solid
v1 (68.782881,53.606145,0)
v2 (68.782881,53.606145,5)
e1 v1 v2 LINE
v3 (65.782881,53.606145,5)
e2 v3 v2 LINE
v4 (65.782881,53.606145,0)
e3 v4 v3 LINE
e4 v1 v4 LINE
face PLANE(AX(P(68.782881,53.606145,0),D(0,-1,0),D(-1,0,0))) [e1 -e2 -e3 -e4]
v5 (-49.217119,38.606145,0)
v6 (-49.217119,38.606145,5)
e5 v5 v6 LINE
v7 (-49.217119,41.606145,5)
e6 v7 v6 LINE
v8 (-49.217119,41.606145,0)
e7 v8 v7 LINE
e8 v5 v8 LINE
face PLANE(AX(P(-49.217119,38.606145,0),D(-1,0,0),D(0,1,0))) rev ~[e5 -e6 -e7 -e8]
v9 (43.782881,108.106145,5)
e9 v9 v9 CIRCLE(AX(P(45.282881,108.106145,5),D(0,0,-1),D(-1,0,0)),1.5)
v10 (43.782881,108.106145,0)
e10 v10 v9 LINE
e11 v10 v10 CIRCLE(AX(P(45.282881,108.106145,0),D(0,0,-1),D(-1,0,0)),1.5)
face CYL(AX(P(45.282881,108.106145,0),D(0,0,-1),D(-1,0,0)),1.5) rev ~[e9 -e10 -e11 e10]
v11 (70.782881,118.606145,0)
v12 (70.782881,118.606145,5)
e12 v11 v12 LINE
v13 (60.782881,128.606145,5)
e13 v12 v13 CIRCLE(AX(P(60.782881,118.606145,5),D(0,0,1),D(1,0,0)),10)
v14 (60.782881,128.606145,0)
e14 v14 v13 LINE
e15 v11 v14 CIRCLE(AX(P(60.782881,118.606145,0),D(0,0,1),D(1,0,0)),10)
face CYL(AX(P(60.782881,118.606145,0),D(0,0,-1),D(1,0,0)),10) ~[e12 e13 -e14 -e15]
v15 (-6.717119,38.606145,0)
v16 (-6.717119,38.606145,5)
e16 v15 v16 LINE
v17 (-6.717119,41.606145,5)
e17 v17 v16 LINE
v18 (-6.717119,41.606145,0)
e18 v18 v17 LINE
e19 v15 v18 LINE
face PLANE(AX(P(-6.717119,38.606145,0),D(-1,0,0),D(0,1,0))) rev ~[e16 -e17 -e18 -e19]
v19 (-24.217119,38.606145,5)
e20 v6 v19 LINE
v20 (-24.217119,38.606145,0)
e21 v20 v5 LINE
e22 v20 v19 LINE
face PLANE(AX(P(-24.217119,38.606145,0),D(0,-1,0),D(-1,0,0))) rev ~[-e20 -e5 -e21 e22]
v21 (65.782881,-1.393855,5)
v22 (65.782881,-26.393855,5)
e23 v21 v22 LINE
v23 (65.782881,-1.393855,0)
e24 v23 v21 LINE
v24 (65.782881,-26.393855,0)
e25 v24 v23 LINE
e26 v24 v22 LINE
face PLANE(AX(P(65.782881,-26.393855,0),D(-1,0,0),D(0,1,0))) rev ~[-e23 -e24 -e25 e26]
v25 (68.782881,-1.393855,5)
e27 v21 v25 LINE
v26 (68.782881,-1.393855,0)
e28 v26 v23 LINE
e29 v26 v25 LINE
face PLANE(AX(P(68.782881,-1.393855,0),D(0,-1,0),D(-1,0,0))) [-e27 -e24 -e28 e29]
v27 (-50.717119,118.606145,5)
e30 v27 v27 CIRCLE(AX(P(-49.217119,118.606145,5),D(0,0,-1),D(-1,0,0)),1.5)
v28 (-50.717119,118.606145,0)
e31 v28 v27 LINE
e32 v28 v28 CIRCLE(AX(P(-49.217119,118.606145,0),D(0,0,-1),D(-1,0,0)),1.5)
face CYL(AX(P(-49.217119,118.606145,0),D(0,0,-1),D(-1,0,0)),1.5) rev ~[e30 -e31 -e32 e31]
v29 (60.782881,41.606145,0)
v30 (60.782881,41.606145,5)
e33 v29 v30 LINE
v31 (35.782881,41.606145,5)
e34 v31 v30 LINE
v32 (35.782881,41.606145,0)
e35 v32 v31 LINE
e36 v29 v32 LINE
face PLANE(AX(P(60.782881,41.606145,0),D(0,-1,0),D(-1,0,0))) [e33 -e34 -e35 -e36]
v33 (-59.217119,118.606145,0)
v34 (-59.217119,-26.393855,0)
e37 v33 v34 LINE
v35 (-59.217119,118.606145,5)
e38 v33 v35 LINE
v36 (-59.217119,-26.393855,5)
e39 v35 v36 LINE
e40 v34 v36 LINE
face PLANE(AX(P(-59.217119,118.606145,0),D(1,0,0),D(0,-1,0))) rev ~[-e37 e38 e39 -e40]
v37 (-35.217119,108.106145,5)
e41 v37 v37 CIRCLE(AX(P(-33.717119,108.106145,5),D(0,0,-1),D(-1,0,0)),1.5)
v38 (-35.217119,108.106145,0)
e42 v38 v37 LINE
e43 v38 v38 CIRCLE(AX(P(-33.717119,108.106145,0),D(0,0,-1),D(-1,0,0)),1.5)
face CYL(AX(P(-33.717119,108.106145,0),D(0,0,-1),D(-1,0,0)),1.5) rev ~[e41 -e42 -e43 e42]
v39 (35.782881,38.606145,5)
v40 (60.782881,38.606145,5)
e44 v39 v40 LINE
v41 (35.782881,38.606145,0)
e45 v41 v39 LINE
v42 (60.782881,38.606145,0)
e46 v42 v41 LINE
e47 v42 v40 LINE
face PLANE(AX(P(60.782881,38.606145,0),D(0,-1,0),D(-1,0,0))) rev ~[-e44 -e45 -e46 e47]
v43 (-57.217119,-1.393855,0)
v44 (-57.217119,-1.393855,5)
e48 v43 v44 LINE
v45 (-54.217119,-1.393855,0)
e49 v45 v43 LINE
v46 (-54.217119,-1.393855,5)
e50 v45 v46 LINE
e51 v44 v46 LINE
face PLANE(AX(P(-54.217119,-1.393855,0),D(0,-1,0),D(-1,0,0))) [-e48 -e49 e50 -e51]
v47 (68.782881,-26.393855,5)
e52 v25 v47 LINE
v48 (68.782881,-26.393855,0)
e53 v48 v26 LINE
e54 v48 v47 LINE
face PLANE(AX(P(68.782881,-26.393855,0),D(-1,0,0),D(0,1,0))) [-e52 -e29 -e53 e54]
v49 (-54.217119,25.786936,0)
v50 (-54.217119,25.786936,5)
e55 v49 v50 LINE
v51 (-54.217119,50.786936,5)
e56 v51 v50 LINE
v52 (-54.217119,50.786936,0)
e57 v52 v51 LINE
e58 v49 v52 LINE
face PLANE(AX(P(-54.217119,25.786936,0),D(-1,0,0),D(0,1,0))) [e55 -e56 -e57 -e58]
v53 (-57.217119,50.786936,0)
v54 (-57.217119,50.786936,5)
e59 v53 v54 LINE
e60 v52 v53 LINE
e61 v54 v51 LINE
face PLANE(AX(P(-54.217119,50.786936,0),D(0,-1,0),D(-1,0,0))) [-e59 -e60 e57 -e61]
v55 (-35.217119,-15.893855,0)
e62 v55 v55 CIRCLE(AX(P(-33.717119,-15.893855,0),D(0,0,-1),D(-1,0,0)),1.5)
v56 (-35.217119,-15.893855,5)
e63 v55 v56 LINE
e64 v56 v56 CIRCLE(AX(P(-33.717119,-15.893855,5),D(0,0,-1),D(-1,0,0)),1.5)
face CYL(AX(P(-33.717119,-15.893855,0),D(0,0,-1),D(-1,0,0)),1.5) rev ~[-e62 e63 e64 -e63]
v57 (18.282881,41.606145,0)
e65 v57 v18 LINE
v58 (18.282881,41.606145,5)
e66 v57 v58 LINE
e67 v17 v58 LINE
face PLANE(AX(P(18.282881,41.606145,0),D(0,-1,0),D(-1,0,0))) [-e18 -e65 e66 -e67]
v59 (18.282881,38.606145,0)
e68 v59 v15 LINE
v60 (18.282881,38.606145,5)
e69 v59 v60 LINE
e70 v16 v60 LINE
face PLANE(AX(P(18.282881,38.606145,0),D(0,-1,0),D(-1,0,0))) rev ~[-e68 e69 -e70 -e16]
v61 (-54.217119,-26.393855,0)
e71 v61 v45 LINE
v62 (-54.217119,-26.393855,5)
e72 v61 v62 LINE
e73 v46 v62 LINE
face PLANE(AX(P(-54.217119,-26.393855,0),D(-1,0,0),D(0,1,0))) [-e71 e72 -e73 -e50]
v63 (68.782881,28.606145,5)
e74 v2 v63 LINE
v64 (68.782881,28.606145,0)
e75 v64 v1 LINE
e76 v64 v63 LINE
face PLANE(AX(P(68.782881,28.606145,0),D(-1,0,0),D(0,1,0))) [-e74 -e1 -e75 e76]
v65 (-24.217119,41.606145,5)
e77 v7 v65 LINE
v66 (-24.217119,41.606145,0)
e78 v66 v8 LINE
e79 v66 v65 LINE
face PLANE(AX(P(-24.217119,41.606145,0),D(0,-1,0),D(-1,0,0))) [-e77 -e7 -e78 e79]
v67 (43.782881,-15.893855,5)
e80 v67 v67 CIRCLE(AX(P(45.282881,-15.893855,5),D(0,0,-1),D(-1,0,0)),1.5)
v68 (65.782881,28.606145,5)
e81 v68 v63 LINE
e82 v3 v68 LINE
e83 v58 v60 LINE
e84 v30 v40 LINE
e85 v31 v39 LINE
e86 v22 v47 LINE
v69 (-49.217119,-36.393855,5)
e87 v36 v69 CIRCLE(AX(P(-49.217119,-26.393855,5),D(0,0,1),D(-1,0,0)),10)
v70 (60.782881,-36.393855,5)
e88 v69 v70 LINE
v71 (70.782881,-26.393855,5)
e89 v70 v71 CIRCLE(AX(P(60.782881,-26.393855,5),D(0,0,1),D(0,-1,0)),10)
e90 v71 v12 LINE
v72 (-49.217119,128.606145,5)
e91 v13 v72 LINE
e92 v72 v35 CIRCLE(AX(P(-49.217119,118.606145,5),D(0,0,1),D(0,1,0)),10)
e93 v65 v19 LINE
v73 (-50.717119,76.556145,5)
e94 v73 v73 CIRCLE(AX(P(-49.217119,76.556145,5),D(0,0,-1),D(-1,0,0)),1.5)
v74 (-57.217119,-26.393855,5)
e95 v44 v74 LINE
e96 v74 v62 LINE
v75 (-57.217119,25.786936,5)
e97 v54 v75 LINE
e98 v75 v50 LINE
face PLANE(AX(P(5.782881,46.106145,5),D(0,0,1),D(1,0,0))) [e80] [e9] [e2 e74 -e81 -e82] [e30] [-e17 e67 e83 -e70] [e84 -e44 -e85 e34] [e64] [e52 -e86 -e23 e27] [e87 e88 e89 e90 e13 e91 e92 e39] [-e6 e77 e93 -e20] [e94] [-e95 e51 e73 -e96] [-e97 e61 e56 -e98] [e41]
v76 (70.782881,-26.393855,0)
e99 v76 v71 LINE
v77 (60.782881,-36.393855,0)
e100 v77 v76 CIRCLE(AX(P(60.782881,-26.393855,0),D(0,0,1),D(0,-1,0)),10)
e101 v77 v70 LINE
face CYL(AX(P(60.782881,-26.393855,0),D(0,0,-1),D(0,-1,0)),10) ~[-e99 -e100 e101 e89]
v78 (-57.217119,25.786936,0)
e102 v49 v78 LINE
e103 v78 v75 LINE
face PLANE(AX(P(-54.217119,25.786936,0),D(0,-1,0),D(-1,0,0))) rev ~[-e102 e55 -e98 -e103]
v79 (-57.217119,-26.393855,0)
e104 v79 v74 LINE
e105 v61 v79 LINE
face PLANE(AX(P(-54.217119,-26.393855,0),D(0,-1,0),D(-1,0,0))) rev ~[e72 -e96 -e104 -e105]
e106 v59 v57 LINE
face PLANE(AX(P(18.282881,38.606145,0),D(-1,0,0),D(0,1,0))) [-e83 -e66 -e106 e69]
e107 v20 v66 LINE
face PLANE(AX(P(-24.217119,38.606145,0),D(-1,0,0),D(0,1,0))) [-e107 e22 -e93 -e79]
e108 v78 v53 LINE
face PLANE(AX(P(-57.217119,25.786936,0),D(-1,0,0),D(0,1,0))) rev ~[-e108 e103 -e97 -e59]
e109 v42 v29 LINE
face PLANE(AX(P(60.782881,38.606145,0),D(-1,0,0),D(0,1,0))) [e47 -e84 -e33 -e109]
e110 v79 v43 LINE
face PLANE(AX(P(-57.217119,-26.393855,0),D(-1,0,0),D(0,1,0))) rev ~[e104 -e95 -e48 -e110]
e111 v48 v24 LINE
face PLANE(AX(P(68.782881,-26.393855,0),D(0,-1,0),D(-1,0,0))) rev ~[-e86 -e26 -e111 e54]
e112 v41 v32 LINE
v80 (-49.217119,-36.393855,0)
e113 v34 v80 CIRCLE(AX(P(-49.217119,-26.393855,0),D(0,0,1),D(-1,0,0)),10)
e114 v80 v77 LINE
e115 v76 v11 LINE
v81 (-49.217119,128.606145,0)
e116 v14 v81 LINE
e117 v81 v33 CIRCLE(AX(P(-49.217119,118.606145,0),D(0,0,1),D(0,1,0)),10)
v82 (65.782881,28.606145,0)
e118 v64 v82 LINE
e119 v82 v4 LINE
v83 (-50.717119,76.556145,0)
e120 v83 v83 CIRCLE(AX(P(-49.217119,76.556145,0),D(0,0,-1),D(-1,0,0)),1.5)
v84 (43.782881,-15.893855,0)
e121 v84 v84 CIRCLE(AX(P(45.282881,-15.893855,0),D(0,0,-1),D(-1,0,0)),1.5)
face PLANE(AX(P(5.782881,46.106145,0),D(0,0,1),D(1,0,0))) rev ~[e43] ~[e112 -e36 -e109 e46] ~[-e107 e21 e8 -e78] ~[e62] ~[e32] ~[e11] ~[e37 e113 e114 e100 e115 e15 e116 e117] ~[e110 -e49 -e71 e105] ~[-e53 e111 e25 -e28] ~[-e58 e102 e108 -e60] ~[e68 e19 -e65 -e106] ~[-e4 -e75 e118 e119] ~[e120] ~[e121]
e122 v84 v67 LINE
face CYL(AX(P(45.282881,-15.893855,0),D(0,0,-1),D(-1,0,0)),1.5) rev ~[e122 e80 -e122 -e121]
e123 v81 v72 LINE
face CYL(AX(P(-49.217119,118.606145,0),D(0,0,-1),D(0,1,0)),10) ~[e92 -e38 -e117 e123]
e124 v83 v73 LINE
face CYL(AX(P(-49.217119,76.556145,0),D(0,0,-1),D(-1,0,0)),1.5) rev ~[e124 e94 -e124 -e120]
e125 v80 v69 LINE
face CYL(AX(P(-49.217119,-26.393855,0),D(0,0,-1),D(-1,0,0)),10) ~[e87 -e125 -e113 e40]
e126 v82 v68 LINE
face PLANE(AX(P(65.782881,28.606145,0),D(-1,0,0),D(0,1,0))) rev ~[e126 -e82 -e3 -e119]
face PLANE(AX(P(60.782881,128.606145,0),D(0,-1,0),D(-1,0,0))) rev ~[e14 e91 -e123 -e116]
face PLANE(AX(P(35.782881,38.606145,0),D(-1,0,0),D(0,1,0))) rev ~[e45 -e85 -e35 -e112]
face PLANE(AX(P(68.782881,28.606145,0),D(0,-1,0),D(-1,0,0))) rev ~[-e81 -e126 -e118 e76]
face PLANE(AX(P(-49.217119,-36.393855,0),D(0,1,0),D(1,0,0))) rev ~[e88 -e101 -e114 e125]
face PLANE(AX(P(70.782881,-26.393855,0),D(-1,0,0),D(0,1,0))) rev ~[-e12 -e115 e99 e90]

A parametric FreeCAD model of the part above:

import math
import FreeCAD as App
import Part
import Sketcher

doc = App.newDocument("Part")
body = doc.addObject("PartDesign::Body", "Body")

sketch1 = body.newObject("Sketcher::SketchObject", "Sketch")
sketch1.AttachmentSupport = (doc.getObject("XY_Plane"), [""])
sketch1.MapMode = "FlatFace"
sketch1.addGeometry(Part.LineSegment(App.Vector(-49, -36, 0), App.Vector(61, -36, 0)), False)
sketch1.addGeometry(Part.ArcOfCircle(Part.Circle(App.Vector(61, -26, 0), App.Vector(0, 0, 1), 10), math.radians(-90), math.radians(0)), False)
sketch1.addGeometry(Part.LineSegment(App.Vector(71, -26, 0), App.Vector(71, 119, 0)), False)
sketch1.addGeometry(Part.ArcOfCircle(Part.Circle(App.Vector(61, 119, 0), App.Vector(0, 0, 1), 10), math.radians(0), math.radians(90)), False)
sketch1.addGeometry(Part.LineSegment(App.Vector(61, 129, 0), App.Vector(-49, 129, 0)), False)
sketch1.addGeometry(Part.ArcOfCircle(Part.Circle(App.Vector(-49, 119, 0), App.Vector(0, 0, 1), 10), math.radians(90), math.radians(180)), False)
sketch1.addGeometry(Part.LineSegment(App.Vector(-59, 119, 0), App.Vector(-59, -26, 0)), False)
sketch1.addGeometry(Part.ArcOfCircle(Part.Circle(App.Vector(-49, -26, 0), App.Vector(0, 0, 1), 10), math.radians(180), math.radians(270)), False)
sketch1.addConstraint(Sketcher.Constraint("Tangent", 0, 2, 1, 1))
sketch1.addConstraint(Sketcher.Constraint("Tangent", 1, 2, 2, 1))
sketch1.addConstraint(Sketcher.Constraint("Tangent", 2, 2, 3, 1))
sketch1.addConstraint(Sketcher.Constraint("Tangent", 3, 2, 4, 1))
sketch1.addConstraint(Sketcher.Constraint("Tangent", 4, 2, 5, 1))
sketch1.addConstraint(Sketcher.Constraint("Tangent", 5, 2, 6, 1))
sketch1.addConstraint(Sketcher.Constraint("Tangent", 6, 2, 7, 1))
sketch1.addConstraint(Sketcher.Constraint("Tangent", 7, 2, 0, 1))
sketch1.addConstraint(Sketcher.Constraint("Horizontal", 0))
sketch1.addConstraint(Sketcher.Constraint("Vertical", 2))
sketch1.addConstraint(Sketcher.Constraint("Horizontal", 4))
sketch1.addConstraint(Sketcher.Constraint("Vertical", 6))
sketch1.addConstraint(Sketcher.Constraint("Equal", 1, 3))
sketch1.addConstraint(Sketcher.Constraint("Equal", 3, 5))
sketch1.addConstraint(Sketcher.Constraint("Equal", 5, 7))
sketch1.addConstraint(Sketcher.Constraint("Radius", 1, 10.0))
sketch1.addConstraint(Sketcher.Constraint("DistanceX", 0, 1, 0, 2, 110.0))
sketch1.addConstraint(Sketcher.Constraint("DistanceY", 2, 1, 2, 2, 145.0))
sketch1.addConstraint(Sketcher.Constraint("DistanceX", -1, 1, 1, 3, 60.782881))
sketch1.addConstraint(Sketcher.Constraint("DistanceY", 1, 3, -1, 1, 26.393855))
pad1 = body.newObject("PartDesign::Pad", "Pad")
pad1.Profile = sketch1
pad1.Length = 5

sketch2 = body.newObject("Sketcher::SketchObject", "Sketch001")
sketch2.AttachmentSupport = (doc.getObject("XY_Plane"), [""])
sketch2.MapMode = "FlatFace"
sketch2.addGeometry(Part.Circle(App.Vector(-33.7, -15.9, 0), App.Vector(0, 0, 1), 1.5), False)
sketch2.addGeometry(Part.Circle(App.Vector(-33.7, 108.1, 0), App.Vector(0, 0, 1), 1.5), False)
sketch2.addGeometry(Part.Circle(App.Vector(45.3, -15.9, 0), App.Vector(0, 0, 1), 1.5), False)
sketch2.addGeometry(Part.Circle(App.Vector(45.3, 108.1, 0), App.Vector(0, 0, 1), 1.5), False)
sketch2.addConstraint(Sketcher.Constraint("Equal", 0, 1))
sketch2.addConstraint(Sketcher.Constraint("Equal", 1, 2))
sketch2.addConstraint(Sketcher.Constraint("Equal", 2, 3))
sketch2.addConstraint(Sketcher.Constraint("Horizontal", 0, 3, 2, 3))
sketch2.addConstraint(Sketcher.Constraint("Horizontal", 1, 3, 3, 3))
sketch2.addConstraint(Sketcher.Constraint("Vertical", 0, 3, 1, 3))
sketch2.addConstraint(Sketcher.Constraint("Vertical", 2, 3, 3, 3))
sketch2.addConstraint(Sketcher.Constraint("Diameter", 0, 3.0))
sketch2.addConstraint(Sketcher.Constraint("DistanceY", 0, 3, 1, 3, 124.0))
sketch2.addConstraint(Sketcher.Constraint("DistanceX", 0, 3, 2, 3, 79.0))
sketch2.addConstraint(Sketcher.Constraint("DistanceX", 0, 3, -1, 1, 33.717119))
sketch2.addConstraint(Sketcher.Constraint("DistanceY", 0, 3, -1, 1, 15.893855))
pocket1 = body.newObject("PartDesign::Pocket", "Pocket")
pocket1.Profile = sketch2
pocket1.Length = 5
pocket1.Reversed = True

sketch3 = body.newObject("Sketcher::SketchObject", "Sketch002")
sketch3.AttachmentSupport = (doc.getObject("XY_Plane"), [""])
sketch3.MapMode = "FlatFace"
sketch3.addGeometry(Part.Circle(App.Vector(-49.2, 118.6, 0), App.Vector(0, 0, 1), 1.5), False)
sketch3.addGeometry(Part.Circle(App.Vector(-49.2, 76.6, 0), App.Vector(0, 0, 1), 1.5), False)
sketch3.addConstraint(Sketcher.Constraint("Equal", 0, 1))
sketch3.addConstraint(Sketcher.Constraint("Vertical", 0, 3, 1, 3))
sketch3.addConstraint(Sketcher.Constraint("Diameter", 0, 3.0))
sketch3.addConstraint(Sketcher.Constraint("DistanceY", 1, 3, 0, 3, 42.05))
sketch3.addConstraint(Sketcher.Constraint("DistanceX", 0, 3, -1, 1, 49.217119))
sketch3.addConstraint(Sketcher.Constraint("DistanceY", -1, 1, 0, 3, 118.606145))
pocket2 = body.newObject("PartDesign::Pocket", "Pocket001")
pocket2.Profile = sketch3
pocket2.Type = "ThroughAll"
pocket2.Reversed = True

sketch4 = body.newObject("Sketcher::SketchObject", "Sketch003")
sketch4.AttachmentSupport = (doc.getObject("XY_Plane"), [""])
sketch4.MapMode = "FlatFace"
sketch4.addGeometry(Part.LineSegment(App.Vector(68.8, -1.4, 0), App.Vector(68.8, -26.4, 0)), False)
sketch4.addGeometry(Part.LineSegment(App.Vector(68.8, -26.4, 0), App.Vector(65.8, -26.4, 0)), False)
sketch4.addGeometry(Part.LineSegment(App.Vector(65.8, -26.4, 0), App.Vector(65.8, -1.4, 0)), False)
sketch4.addGeometry(Part.LineSegment(App.Vector(65.8, -1.4, 0), App.Vector(68.8, -1.4, 0)), False)
sketch4.addGeometry(Part.LineSegment(App.Vector(68.8, 53.6, 0), App.Vector(68.8, 28.6, 0)), False)
sketch4.addGeometry(Part.LineSegment(App.Vector(68.8, 28.6, 0), App.Vector(65.8, 28.6, 0)), False)
sketch4.addGeometry(Part.LineSegment(App.Vector(65.8, 28.6, 0), App.Vector(65.8, 53.6, 0)), False)
sketch4.addGeometry(Part.LineSegment(App.Vector(65.8, 53.6, 0), App.Vector(68.8, 53.6, 0)), False)
sketch4.addGeometry(Part.LineSegment(App.Vector(60.8, 41.6, 0), App.Vector(60.8, 38.6, 0)), False)
sketch4.addGeometry(Part.LineSegment(App.Vector(60.8, 38.6, 0), App.Vector(35.8, 38.6, 0)), False)
sketch4.addGeometry(Part.LineSegment(App.Vector(35.8, 38.6, 0), App.Vector(35.8, 41.6, 0)), False)
sketch4.addGeometry(Part.LineSegment(App.Vector(35.8, 41.6, 0), App.Vector(60.8, 41.6, 0)), False)
sketch4.addGeometry(Part.LineSegment(App.Vector(-24.2, 41.6, 0), App.Vector(-24.2, 38.6, 0)), False)
sketch4.addGeometry(Part.LineSegment(App.Vector(-24.2, 38.6, 0), App.Vector(-49.2, 38.6, 0)), False)
sketch4.addGeometry(Part.LineSegment(App.Vector(-49.2, 38.6, 0), App.Vector(-49.2, 41.6, 0)), False)
sketch4.addGeometry(Part.LineSegment(App.Vector(-49.2, 41.6, 0), App.Vector(-24.2, 41.6, 0)), False)
sketch4.addGeometry(Part.LineSegment(App.Vector(-54.2, 50.8, 0), App.Vector(-54.2, 25.8, 0)), False)
sketch4.addGeometry(Part.LineSegment(App.Vector(-54.2, 25.8, 0), App.Vector(-57.2, 25.8, 0)), False)
sketch4.addGeometry(Part.LineSegment(App.Vector(-57.2, 25.8, 0), App.Vector(-57.2, 50.8, 0)), False)
sketch4.addGeometry(Part.LineSegment(App.Vector(-57.2, 50.8, 0), App.Vector(-54.2, 50.8, 0)), False)
sketch4.addGeometry(Part.LineSegment(App.Vector(-54.2, -1.4, 0), App.Vector(-54.2, -26.4, 0)), False)
sketch4.addGeometry(Part.LineSegment(App.Vector(-54.2, -26.4, 0), App.Vector(-57.2, -26.4, 0)), False)
sketch4.addGeometry(Part.LineSegment(App.Vector(-57.2, -26.4, 0), App.Vector(-57.2, -1.4, 0)), False)
sketch4.addGeometry(Part.LineSegment(App.Vector(-57.2, -1.4, 0), App.Vector(-54.2, -1.4, 0)), False)
sketch4.addGeometry(Part.LineSegment(App.Vector(18.3, 41.6, 0), App.Vector(18.3, 38.6, 0)), False)
sketch4.addGeometry(Part.LineSegment(App.Vector(18.3, 38.6, 0), App.Vector(-6.7, 38.6, 0)), False)
sketch4.addGeometry(Part.LineSegment(App.Vector(-6.7, 38.6, 0), App.Vector(-6.7, 41.6, 0)), False)
sketch4.addGeometry(Part.LineSegment(App.Vector(-6.7, 41.6, 0), App.Vector(18.3, 41.6, 0)), False)
sketch4.addConstraint(Sketcher.Constraint("Coincident", 0, 2, 1, 1))
sketch4.addConstraint(Sketcher.Constraint("Coincident", 1, 2, 2, 1))
sketch4.addConstraint(Sketcher.Constraint("Coincident", 2, 2, 3, 1))
sketch4.addConstraint(Sketcher.Constraint("Coincident", 3, 2, 0, 1))
sketch4.addConstraint(Sketcher.Constraint("Coincident", 4, 2, 5, 1))
sketch4.addConstraint(Sketcher.Constraint("Coincident", 5, 2, 6, 1))
sketch4.addConstraint(Sketcher.Constraint("Coincident", 6, 2, 7, 1))
sketch4.addConstraint(Sketcher.Constraint("Coincident", 7, 2, 4, 1))
sketch4.addConstraint(Sketcher.Constraint("Coincident", 8, 2, 9, 1))
sketch4.addConstraint(Sketcher.Constraint("Coincident", 9, 2, 10, 1))
sketch4.addConstraint(Sketcher.Constraint("Coincident", 10, 2, 11, 1))
sketch4.addConstraint(Sketcher.Constraint("Coincident", 11, 2, 8, 1))
sketch4.addConstraint(Sketcher.Constraint("Coincident", 12, 2, 13, 1))
sketch4.addConstraint(Sketcher.Constraint("Coincident", 13, 2, 14, 1))
sketch4.addConstraint(Sketcher.Constraint("Coincident", 14, 2, 15, 1))
sketch4.addConstraint(Sketcher.Constraint("Coincident", 15, 2, 12, 1))
sketch4.addConstraint(Sketcher.Constraint("Coincident", 16, 2, 17, 1))
sketch4.addConstraint(Sketcher.Constraint("Coincident", 17, 2, 18, 1))
sketch4.addConstraint(Sketcher.Constraint("Coincident", 18, 2, 19, 1))
sketch4.addConstraint(Sketcher.Constraint("Coincident", 19, 2, 16, 1))
sketch4.addConstraint(Sketcher.Constraint("Coincident", 20, 2, 21, 1))
sketch4.addConstraint(Sketcher.Constraint("Coincident", 21, 2, 22, 1))
sketch4.addConstraint(Sketcher.Constraint("Coincident", 22, 2, 23, 1))
sketch4.addConstraint(Sketcher.Constraint("Coincident", 23, 2, 20, 1))
sketch4.addConstraint(Sketcher.Constraint("Coincident", 24, 2, 25, 1))
sketch4.addConstraint(Sketcher.Constraint("Coincident", 25, 2, 26, 1))
sketch4.addConstraint(Sketcher.Constraint("Coincident", 26, 2, 27, 1))
sketch4.addConstraint(Sketcher.Constraint("Coincident", 27, 2, 24, 1))
sketch4.addConstraint(Sketcher.Constraint("Vertical", 0))
sketch4.addConstraint(Sketcher.Constraint("Horizontal", 1))
sketch4.addConstraint(Sketcher.Constraint("Vertical", 2))
sketch4.addConstraint(Sketcher.Constraint("Horizontal", 3))
sketch4.addConstraint(Sketcher.Constraint("Vertical", 4))
sketch4.addConstraint(Sketcher.Constraint("Horizontal", 5))
sketch4.addConstraint(Sketcher.Constraint("Vertical", 6))
sketch4.addConstraint(Sketcher.Constraint("Horizontal", 7))
sketch4.addConstraint(Sketcher.Constraint("Vertical", 8))
sketch4.addConstraint(Sketcher.Constraint("Horizontal", 9))
sketch4.addConstraint(Sketcher.Constraint("Vertical", 10))
sketch4.addConstraint(Sketcher.Constraint("Horizontal", 11))
sketch4.addConstraint(Sketcher.Constraint("Vertical", 12))
sketch4.addConstraint(Sketcher.Constraint("Horizontal", 13))
sketch4.addConstraint(Sketcher.Constraint("Vertical", 14))
sketch4.addConstraint(Sketcher.Constraint("Horizontal", 15))
sketch4.addConstraint(Sketcher.Constraint("Vertical", 16))
sketch4.addConstraint(Sketcher.Constraint("Horizontal", 17))
sketch4.addConstraint(Sketcher.Constraint("Vertical", 18))
sketch4.addConstraint(Sketcher.Constraint("Horizontal", 19))
sketch4.addConstraint(Sketcher.Constraint("Vertical", 20))
sketch4.addConstraint(Sketcher.Constraint("Horizontal", 21))
sketch4.addConstraint(Sketcher.Constraint("Vertical", 22))
sketch4.addConstraint(Sketcher.Constraint("Horizontal", 23))
sketch4.addConstraint(Sketcher.Constraint("Vertical", 24))
sketch4.addConstraint(Sketcher.Constraint("Horizontal", 25))
sketch4.addConstraint(Sketcher.Constraint("Vertical", 26))
sketch4.addConstraint(Sketcher.Constraint("Horizontal", 27))
sketch4.addConstraint(Sketcher.Constraint("Horizontal", 9, 2, 12, 2))
sketch4.addConstraint(Sketcher.Constraint("Horizontal", 11, 2, 14, 2))
sketch4.addConstraint(Sketcher.Constraint("Horizontal", 1, 2, 20, 2))
sketch4.addConstraint(Sketcher.Constraint("Horizontal", 3, 2, 22, 2))
sketch4.addConstraint(Sketcher.Constraint("Horizontal", 13, 2, 24, 2))
sketch4.addConstraint(Sketcher.Constraint("Horizontal", 15, 2, 26, 2))
sketch4.addConstraint(Sketcher.Constraint("Vertical", 3, 2, 4, 2))
sketch4.addConstraint(Sketcher.Constraint("Vertical", 2, 2, 5, 2))
sketch4.addConstraint(Sketcher.Constraint("Vertical", 19, 2, 20, 2))
sketch4.addConstraint(Sketcher.Constraint("Vertical", 18, 2, 21, 2))
sketch4.addConstraint(Sketcher.Constraint("Equal", 11, 13))
sketch4.addConstraint(Sketcher.Constraint("Equal", 7, 17))
sketch4.addConstraint(Sketcher.Constraint("Equal", 15, 25))
sketch4.addConstraint(Sketcher.Constraint("Equal", 27, 0))
sketch4.addConstraint(Sketcher.Constraint("Equal", 2, 4))
sketch4.addConstraint(Sketcher.Constraint("Equal", 23, 8))
sketch4.addConstraint(Sketcher.Constraint("Equal", 6, 16))
sketch4.addConstraint(Sketcher.Constraint("DistanceX", 1, 2, 1, 1, 3.0))
sketch4.addConstraint(Sketcher.Constraint("DistanceX", 9, 2, 9, 1, 25.0))
sketch4.addConstraint(Sketcher.Constraint("DistanceY", 3, 2, 4, 2, 30.0))
sketch4.addConstraint(Sketcher.Constraint("DistanceX", 8, 2, 5, 2, 5.0))
sketch4.addConstraint(Sketcher.Constraint("DistanceY", 5, 2, 8, 2, 10.0))
sketch4.addConstraint(Sketcher.Constraint("DistanceX", 12, 2, 9, 2, 60.0))
sketch4.addConstraint(Sketcher.Constraint("DistanceX", 16, 2, 13, 2, 5.0))
sketch4.addConstraint(Sketcher.Constraint("DistanceX", 24, 2, 9, 2, 17.5))
sketch4.addConstraint(Sketcher.Constraint("DistanceX", -1, 1, 0, 2, 68.782881))
sketch4.addConstraint(Sketcher.Constraint("DistanceY", 16, 2, 13, 2, 12.819209))
sketch4.addConstraint(Sketcher.Constraint("DistanceY", 0, 2, -1, 1, 26.393855))
pocket3 = body.newObject("PartDesign::Pocket", "Pocket002")
pocket3.Profile = sketch4
pocket3.Type = "ThroughAll"
pocket3.Reversed = True

doc.recompute()
